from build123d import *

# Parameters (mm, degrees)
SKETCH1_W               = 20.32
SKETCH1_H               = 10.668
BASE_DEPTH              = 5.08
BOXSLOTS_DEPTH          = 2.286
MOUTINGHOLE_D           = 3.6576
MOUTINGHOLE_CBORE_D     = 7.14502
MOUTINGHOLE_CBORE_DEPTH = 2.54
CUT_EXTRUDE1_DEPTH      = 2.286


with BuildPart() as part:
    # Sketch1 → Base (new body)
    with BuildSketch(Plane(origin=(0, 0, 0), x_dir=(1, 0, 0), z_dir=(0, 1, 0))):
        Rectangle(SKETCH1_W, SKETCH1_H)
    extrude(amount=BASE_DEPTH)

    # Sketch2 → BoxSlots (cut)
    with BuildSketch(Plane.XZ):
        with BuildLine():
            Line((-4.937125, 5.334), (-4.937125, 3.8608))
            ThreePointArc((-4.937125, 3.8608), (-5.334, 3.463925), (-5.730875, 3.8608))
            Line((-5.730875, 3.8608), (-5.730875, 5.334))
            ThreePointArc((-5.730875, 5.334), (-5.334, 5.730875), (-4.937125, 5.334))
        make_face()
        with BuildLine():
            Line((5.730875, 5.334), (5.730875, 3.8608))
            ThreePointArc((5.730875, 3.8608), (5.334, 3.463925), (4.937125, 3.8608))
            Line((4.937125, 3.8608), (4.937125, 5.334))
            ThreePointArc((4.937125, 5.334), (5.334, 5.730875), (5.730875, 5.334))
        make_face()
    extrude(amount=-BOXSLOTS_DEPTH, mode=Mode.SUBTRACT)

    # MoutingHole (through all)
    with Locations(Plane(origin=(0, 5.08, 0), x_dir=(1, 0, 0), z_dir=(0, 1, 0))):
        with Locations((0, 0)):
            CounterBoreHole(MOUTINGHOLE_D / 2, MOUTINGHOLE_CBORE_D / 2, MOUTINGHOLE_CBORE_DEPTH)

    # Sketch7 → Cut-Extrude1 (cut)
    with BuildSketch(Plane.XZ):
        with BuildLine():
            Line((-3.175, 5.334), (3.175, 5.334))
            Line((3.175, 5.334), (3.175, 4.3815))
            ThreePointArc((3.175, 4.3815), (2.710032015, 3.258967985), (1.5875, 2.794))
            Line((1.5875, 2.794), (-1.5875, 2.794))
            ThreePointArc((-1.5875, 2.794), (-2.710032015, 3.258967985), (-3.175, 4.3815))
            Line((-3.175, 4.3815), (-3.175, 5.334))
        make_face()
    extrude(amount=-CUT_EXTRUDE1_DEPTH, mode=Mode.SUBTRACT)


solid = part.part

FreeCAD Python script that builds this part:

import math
import FreeCAD as App
import Part
import Sketcher
from FreeCAD import Vector
Q = App.Units.Quantity

doc = App.newDocument("Part")
params = doc.addObject("Spreadsheet::Sheet", "Params")
for row, (alias, value) in enumerate([
    ("sketch1_width", "0.8 in"),
    ("sketch1_height", "0.42 in"),
    ("pad1_length", "0.2 in"),
    ("sketch2_radius", "0.015625 in"),
    ("sketch2_height", "0.058 in"),
    ("pocket1_length", "0.09 in"),
    ("sketch3_diameter", "0.144 in"),
    ("hole_diameter", "0.144 in"),
    ("hole_cbore_diameter", "0.2813 in"),
    ("hole_cbore_depth", "0.1 in"),
    ("sketch4_radius", "0.0625 in"),
    ("sketch4_width", "0.25 in"),
    ("pocket2_length", "0.09 in"),
], start=1):
    params.set(f"A{row}", alias)
    params.set(f"B{row}", "=" + value)
    params.setAlias(f"B{row}", alias)

body = doc.addObject("PartDesign::Body", "Body")

sketch1 = body.newObject("Sketcher::SketchObject", "Sketch")
sketch1.AttachmentSupport = (doc.getObject("XZ_Plane"), [""])
sketch1.MapMode = "FlatFace"
sketch1.addGeometry([
    Part.LineSegment(Vector(-10.16, -5.334, 0), Vector(-10.16, 5.334, 0)),
    Part.LineSegment(Vector(-10.16, 5.334, 0), Vector(10.16, 5.334, 0)),
    Part.LineSegment(Vector(10.16, 5.334, 0), Vector(10.16, -5.334, 0)),
    Part.LineSegment(Vector(10.16, -5.334, 0), Vector(-10.16, -5.334, 0)),
], False)
sketch1.addConstraint([
    Sketcher.Constraint("Coincident", 0, 2, 1, 1),
    Sketcher.Constraint("Coincident", 1, 2, 2, 1),
    Sketcher.Constraint("Coincident", 2, 2, 3, 1),
    Sketcher.Constraint("Coincident", 3, 2, 0, 1),
    Sketcher.Constraint("Vertical", 0),
    Sketcher.Constraint("Horizontal", 1),
    Sketcher.Constraint("Vertical", 2),
    Sketcher.Constraint("Horizontal", 3),
    Sketcher.Constraint("Symmetric", 0, 2, 2, 2, -1, 1),
    Sketcher.Constraint("DistanceX", 1, 1, 1, 2, Q("0.8 in")),
    Sketcher.Constraint("DistanceY", 0, 1, 0, 2, Q("0.42 in")),
])
sketch1.setExpression("Constraints[9]", "Params.sketch1_width")
sketch1.setExpression("Constraints[10]", "Params.sketch1_height")
pad1 = body.newObject("PartDesign::Pad", "Pad")
pad1.Profile = sketch1
pad1.setExpression("Length", "Params.pad1_length")
pad1.Reversed = True

sketch2 = body.newObject("Sketcher::SketchObject", "Sketch001")
sketch2.AttachmentSupport = (doc.getObject("XZ_Plane"), [""])
sketch2.MapMode = "FlatFace"
sketch2.addGeometry([
    Part.LineSegment(Vector(-4.937125, 3.8608, 0), Vector(-4.937125, 5.334, 0)),
    Part.ArcOfCircle(Part.Circle(Vector(-5.334, 5.334, 0), Vector(0, 0, 1), 0.396875), math.radians(0), math.radians(180)),
    Part.LineSegment(Vector(-5.730875, 5.334, 0), Vector(-5.730875, 3.8608, 0)),
    Part.ArcOfCircle(Part.Circle(Vector(-5.334, 3.8608, 0), Vector(0, 0, 1), 0.396875), math.radians(180), math.radians(360)),
    Part.LineSegment(Vector(5.730875, 3.8608, 0), Vector(5.730875, 5.334, 0)),
    Part.ArcOfCircle(Part.Circle(Vector(5.334, 5.334, 0), Vector(0, 0, 1), 0.396875), math.radians(0), math.radians(180)),
    Part.LineSegment(Vector(4.937125, 5.334, 0), Vector(4.937125, 3.8608, 0)),
    Part.ArcOfCircle(Part.Circle(Vector(5.334, 3.8608, 0), Vector(0, 0, 1), 0.396875), math.radians(180), math.radians(360)),
], False)
sketch2.addConstraint([
    Sketcher.Constraint("Tangent", 0, 2, 1, 1),
    Sketcher.Constraint("Tangent", 1, 2, 2, 1),
    Sketcher.Constraint("Tangent", 2, 2, 3, 1),
    Sketcher.Constraint("Tangent", 3, 2, 0, 1),
    Sketcher.Constraint("Tangent", 4, 2, 5, 1),
    Sketcher.Constraint("Tangent", 5, 2, 6, 1),
    Sketcher.Constraint("Tangent", 6, 2, 7, 1),
    Sketcher.Constraint("Tangent", 7, 2, 4, 1),
    Sketcher.Constraint("Vertical", 0),
    Sketcher.Constraint("Vertical", 2),
    Sketcher.Constraint("Vertical", 4),
    Sketcher.Constraint("Vertical", 6),
    Sketcher.Constraint("Equal", 3, 5),
    Sketcher.Constraint("Symmetric", 1, 3, 5, 3, -2),
    Sketcher.Constraint("Horizontal", 3, 3, 7, 3),
    Sketcher.Constraint("Radius", 1, Q("0.015625 in")),
    Sketcher.Constraint("DistanceY", 0, 1, 0, 2, Q("0.058 in")),
    Sketcher.Constraint("DistanceX", 1, 3, -1, 1, Q("0.21 in")),
    Sketcher.Constraint("DistanceY", -1, 1, 1, 3, Q("0.21 in")),
])
sketch2.setExpression("Constraints[15]", "Params.sketch2_radius")
sketch2.setExpression("Constraints[16]", "Params.sketch2_height")
pocket1 = body.newObject("PartDesign::Pocket", "Pocket")
pocket1.Profile = sketch2
pocket1.setExpression("Length", "Params.pocket1_length")

sketch3 = body.newObject("Sketcher::SketchObject", "Sketch002")
sketch3.AttachmentSupport = (doc.getObject("XZ_Plane"), [""])
sketch3.MapMode = "FlatFace"
sketch3.AttachmentOffset = App.Placement(Vector(0, 0, -0.2 * 25.4), App.Rotation())
sketch3.addGeometry(Part.Circle(Vector(0, 0, 0), Vector(0, 0, 1), 1.8288), False)
sketch3.addConstraint([
    Sketcher.Constraint("Coincident", 0, 3, -1, 1),
    Sketcher.Constraint("Diameter", 0, Q("0.144 in")),
])
sketch3.setExpression("Constraints[1]", "Params.sketch3_diameter")
doc.recompute()
hole = body.newObject("PartDesign::Hole", "Hole")
hole.Profile = sketch3
hole.ThreadType = "None"
hole.setExpression("Diameter", "Params.hole_diameter")
hole.DepthType = "ThroughAll"
hole.HoleCutType = "Counterbore"
hole.setExpression("HoleCutDiameter", "Params.hole_cbore_diameter")
hole.setExpression("HoleCutDepth", "Params.hole_cbore_depth")
hole.Reversed = True

sketch4 = body.newObject("Sketcher::SketchObject", "Sketch003")
sketch4.AttachmentSupport = (doc.getObject("XZ_Plane"), [""])
sketch4.MapMode = "FlatFace"
sketch4.addGeometry([
    Part.LineSegment(Vector(3.175, 5.334, 0), Vector(-3.175, 5.334, 0)),
    Part.LineSegment(Vector(-3.175, 5.334, 0), Vector(-3.175, 4.3815, 0)),
    Part.ArcOfCircle(Part.Circle(Vector(-1.5875, 4.3815, 0), Vector(0, 0, 1), 1.5875), math.radians(180), math.radians(270)),
    Part.LineSegment(Vector(-1.5875, 2.794, 0), Vector(1.5875, 2.794, 0)),
    Part.ArcOfCircle(Part.Circle(Vector(1.5875, 4.3815, 0), Vector(0, 0, 1), 1.5875), math.radians(-90), math.radians(0)),
    Part.LineSegment(Vector(3.175, 4.3815, 0), Vector(3.175, 5.334, 0)),
], False)
sketch4.addConstraint([
    Sketcher.Constraint("Coincident", 0, 2, 1, 1),
    Sketcher.Constraint("Tangent", 1, 2, 2, 1),
    Sketcher.Constraint("Tangent", 2, 2, 3, 1),
    Sketcher.Constraint("Tangent", 3, 2, 4, 1),
    Sketcher.Constraint("Tangent", 4, 2, 5, 1),
    Sketcher.Constraint("Coincident", 5, 2, 0, 1),
    Sketcher.Constraint("Horizontal", 0),
    Sketcher.Constraint("Vertical", 1),
    Sketcher.Constraint("Horizontal", 3),
    Sketcher.Constraint("Vertical", 5),
    Sketcher.Constraint("Equal", 2, 4),
    Sketcher.Constraint("Radius", 2, Q("0.0625 in")),
    Sketcher.Constraint("DistanceX", 0, 2, 0, 1, Q("0.25 in")),
    Sketcher.Constraint("DistanceY", 2, 2, 0, 2, Q("0.1 in")),
    Sketcher.Constraint("DistanceY", -1, 1, 0, 2, Q("0.21 in")),
    Sketcher.Constraint("DistanceX", 2, 3, -1, 1, Q("0.0625 in")),
])
sketch4.setExpression("Constraints[11]", "Params.sketch4_radius")
sketch4.setExpression("Constraints[12]", "Params.sketch4_width")
pocket2 = body.newObject("PartDesign::Pocket", "Pocket001")
pocket2.Profile = sketch4
pocket2.setExpression("Length", "Params.pocket2_length")

doc.recompute()
